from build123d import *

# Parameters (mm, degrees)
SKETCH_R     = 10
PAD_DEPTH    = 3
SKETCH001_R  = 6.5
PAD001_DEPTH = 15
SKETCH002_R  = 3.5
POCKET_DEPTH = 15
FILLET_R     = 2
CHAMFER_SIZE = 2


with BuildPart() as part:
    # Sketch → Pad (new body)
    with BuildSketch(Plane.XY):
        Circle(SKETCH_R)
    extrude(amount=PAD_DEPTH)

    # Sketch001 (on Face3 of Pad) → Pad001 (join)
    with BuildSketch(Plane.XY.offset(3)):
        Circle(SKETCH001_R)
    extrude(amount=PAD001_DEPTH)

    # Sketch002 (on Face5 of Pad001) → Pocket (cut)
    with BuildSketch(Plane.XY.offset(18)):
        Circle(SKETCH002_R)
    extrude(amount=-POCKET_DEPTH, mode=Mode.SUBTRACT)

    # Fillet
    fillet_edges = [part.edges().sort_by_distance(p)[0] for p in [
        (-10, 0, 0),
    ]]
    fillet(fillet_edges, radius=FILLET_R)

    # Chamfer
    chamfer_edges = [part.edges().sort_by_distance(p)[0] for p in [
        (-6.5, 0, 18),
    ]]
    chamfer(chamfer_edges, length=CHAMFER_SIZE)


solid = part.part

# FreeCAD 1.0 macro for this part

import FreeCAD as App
import Part
import Sketcher


def edges_at(feature, points):
    """Names of the edges that pass closest to the given points."""
    edges = feature.Shape.Edges
    near = lambda p: min(range(len(edges)), key=lambda i: edges[i].distToShape(Part.Vertex(*p))[0])
    return sorted({f"Edge{near(p) + 1}" for p in points})

doc = App.newDocument("Part")
body = doc.addObject("PartDesign::Body", "Body")

# Sketch on XY plane
sketch1 = body.newObject("Sketcher::SketchObject", "Sketch")
sketch1.AttachmentSupport = (doc.getObject("XY_Plane"), [""])
sketch1.MapMode = "FlatFace"
sketch1.addGeometry(Part.Circle(App.Vector(0, 0, 0), App.Vector(0, 0, 1), 10), False)
sketch1.addConstraint(Sketcher.Constraint("Coincident", 0, 3, -1, 1))
sketch1.addConstraint(Sketcher.Constraint("Diameter", 0, 20.0))
pad1 = body.newObject("PartDesign::Pad", "Pad")
pad1.Profile = sketch1
pad1.Length = 3

# Sketch on XY plane
sketch2 = body.newObject("Sketcher::SketchObject", "Sketch001")
sketch2.AttachmentSupport = (doc.getObject("XY_Plane"), [""])
sketch2.MapMode = "FlatFace"
sketch2.AttachmentOffset = App.Placement(App.Vector(0, 0, 3), App.Rotation())
sketch2.addGeometry(Part.Circle(App.Vector(0, 0, 0), App.Vector(0, 0, 1), 6.5), False)
sketch2.addConstraint(Sketcher.Constraint("Coincident", 0, 3, -1, 1))
sketch2.addConstraint(Sketcher.Constraint("Diameter", 0, 13.0))
pad2 = body.newObject("PartDesign::Pad", "Pad001")
pad2.Profile = sketch2
pad2.Length = 15

# Sketch on XY plane
sketch3 = body.newObject("Sketcher::SketchObject", "Sketch002")
sketch3.AttachmentSupport = (doc.getObject("XY_Plane"), [""])
sketch3.MapMode = "FlatFace"
sketch3.AttachmentOffset = App.Placement(App.Vector(0, 0, 18), App.Rotation())
sketch3.addGeometry(Part.Circle(App.Vector(0, 0, 0), App.Vector(0, 0, 1), 3.5), False)
sketch3.addConstraint(Sketcher.Constraint("Coincident", 0, 3, -1, 1))
sketch3.addConstraint(Sketcher.Constraint("Diameter", 0, 7.0))
pocket1 = body.newObject("PartDesign::Pocket", "Pocket")
pocket1.Profile = sketch3
pocket1.Length = 15
doc.recompute()

fillet = body.newObject("PartDesign::Fillet", "Fillet")
fillet.Base = (pocket1, edges_at(pocket1, [(-10, 0, 0)]))
fillet.Radius = 2
doc.recompute()

chamfer = body.newObject("PartDesign::Chamfer", "Chamfer")
chamfer.Base = (fillet, edges_at(fillet, [(-6.5, 0, 18)]))
chamfer.Size = 2

doc.recompute()
